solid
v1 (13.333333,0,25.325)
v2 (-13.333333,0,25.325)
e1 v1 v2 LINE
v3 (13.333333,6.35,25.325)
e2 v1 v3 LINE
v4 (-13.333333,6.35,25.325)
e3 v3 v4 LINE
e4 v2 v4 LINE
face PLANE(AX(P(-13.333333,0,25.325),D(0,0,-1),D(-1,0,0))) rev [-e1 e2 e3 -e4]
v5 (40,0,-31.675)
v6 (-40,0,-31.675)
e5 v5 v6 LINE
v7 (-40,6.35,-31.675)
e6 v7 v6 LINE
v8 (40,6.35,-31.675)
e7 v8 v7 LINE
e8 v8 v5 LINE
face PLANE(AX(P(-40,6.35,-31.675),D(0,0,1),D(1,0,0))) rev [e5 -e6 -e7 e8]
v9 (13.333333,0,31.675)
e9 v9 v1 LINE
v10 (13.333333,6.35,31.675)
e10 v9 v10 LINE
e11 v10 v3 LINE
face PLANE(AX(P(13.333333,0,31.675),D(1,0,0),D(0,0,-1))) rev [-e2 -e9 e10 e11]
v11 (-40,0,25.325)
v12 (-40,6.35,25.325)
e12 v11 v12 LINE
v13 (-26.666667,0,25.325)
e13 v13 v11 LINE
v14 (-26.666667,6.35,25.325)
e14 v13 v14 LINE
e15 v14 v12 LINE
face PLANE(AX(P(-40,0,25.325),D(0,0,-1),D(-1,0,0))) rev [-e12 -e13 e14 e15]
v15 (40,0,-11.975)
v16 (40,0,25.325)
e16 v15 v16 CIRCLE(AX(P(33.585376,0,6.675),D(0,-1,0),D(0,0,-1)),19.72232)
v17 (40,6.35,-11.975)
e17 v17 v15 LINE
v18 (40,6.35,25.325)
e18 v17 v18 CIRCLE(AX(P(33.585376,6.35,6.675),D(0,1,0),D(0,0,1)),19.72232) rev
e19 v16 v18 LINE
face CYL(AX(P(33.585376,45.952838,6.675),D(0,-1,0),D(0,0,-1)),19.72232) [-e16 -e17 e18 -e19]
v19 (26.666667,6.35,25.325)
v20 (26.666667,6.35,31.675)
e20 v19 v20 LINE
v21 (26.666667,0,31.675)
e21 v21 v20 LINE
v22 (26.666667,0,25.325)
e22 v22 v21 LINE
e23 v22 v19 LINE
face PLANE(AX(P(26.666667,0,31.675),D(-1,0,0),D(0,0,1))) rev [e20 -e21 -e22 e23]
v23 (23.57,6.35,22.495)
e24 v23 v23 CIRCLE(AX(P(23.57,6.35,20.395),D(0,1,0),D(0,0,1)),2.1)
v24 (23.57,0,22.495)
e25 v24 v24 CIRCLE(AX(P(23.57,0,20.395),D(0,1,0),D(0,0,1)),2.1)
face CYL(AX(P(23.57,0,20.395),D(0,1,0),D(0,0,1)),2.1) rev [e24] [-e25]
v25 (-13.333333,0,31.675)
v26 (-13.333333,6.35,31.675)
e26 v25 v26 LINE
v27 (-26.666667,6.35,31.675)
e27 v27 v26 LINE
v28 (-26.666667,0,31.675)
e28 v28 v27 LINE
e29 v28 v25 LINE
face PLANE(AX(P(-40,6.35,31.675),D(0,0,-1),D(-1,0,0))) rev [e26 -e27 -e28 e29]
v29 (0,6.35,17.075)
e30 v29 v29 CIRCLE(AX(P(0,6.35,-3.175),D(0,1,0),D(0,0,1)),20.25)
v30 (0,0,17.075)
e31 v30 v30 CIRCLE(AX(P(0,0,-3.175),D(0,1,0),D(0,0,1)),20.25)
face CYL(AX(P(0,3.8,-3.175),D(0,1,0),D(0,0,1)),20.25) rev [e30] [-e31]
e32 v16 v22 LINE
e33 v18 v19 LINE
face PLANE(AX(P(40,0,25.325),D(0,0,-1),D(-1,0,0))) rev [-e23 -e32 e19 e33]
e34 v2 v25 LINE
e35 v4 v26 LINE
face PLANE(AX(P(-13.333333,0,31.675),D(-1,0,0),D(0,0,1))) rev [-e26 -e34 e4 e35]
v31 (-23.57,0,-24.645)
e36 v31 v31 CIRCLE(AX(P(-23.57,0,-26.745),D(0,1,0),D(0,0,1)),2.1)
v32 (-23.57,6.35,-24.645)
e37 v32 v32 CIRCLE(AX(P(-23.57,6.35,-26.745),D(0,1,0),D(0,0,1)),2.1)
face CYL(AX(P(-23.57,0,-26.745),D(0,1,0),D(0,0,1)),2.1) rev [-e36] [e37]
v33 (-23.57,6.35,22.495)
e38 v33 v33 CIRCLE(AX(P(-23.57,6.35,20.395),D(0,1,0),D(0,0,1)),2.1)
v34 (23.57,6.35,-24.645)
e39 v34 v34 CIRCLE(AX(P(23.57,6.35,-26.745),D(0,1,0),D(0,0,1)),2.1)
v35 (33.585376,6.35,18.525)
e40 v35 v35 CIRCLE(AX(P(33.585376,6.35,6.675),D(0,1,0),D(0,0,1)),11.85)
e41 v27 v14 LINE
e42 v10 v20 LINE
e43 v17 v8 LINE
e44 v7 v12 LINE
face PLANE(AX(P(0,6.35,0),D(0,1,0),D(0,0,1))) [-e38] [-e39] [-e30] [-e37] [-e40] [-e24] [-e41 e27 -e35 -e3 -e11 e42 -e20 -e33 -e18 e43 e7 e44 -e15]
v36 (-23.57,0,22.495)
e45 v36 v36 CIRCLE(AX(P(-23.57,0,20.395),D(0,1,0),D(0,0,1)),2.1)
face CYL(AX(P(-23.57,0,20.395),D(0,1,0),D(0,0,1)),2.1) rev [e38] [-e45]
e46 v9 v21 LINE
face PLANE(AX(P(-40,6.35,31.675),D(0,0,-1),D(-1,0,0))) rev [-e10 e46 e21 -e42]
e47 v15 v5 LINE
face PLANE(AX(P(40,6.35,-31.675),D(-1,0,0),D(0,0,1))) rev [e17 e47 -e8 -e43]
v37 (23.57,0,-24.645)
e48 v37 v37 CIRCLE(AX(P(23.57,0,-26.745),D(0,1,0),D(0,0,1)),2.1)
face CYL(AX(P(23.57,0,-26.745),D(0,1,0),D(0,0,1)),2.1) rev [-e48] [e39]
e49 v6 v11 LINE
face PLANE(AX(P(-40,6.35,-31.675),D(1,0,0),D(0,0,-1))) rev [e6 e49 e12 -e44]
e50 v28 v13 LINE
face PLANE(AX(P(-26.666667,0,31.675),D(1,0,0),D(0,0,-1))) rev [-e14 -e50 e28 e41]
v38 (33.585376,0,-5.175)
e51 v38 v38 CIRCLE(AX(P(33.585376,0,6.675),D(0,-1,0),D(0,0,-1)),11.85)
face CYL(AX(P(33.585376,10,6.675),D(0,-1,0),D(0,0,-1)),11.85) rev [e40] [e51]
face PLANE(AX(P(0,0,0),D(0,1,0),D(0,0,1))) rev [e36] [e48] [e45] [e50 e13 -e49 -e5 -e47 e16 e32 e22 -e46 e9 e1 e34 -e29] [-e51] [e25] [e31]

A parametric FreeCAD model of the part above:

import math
import FreeCAD as App
import Part
import Sketcher

doc = App.newDocument("Part")
body = doc.addObject("PartDesign::Body", "Body")

# Sketch on XZ plane
sketch1 = doc.addObject("Sketcher::SketchObject", "Sketch")
body.addObject(sketch1)
sketch1.AttachmentSupport = (doc.XZ_Plane, [""])
sketch1.MapMode = "FlatFace"
sketch1.addGeometry(Part.LineSegment(App.Vector(-40, -32, 0), App.Vector(-40, 32, 0)), False)
sketch1.addGeometry(Part.LineSegment(App.Vector(-40, 32, 0), App.Vector(40, 32, 0)), False)
sketch1.addGeometry(Part.LineSegment(App.Vector(40, 32, 0), App.Vector(40, -32, 0)), False)
sketch1.addGeometry(Part.LineSegment(App.Vector(40, -32, 0), App.Vector(-40, -32, 0)), False)
sketch1.addConstraint(Sketcher.Constraint("Coincident", 0, 2, 1, 1))
sketch1.addConstraint(Sketcher.Constraint("Coincident", 1, 2, 2, 1))
sketch1.addConstraint(Sketcher.Constraint("Coincident", 2, 2, 3, 1))
sketch1.addConstraint(Sketcher.Constraint("Coincident", 3, 2, 0, 1))
sketch1.addConstraint(Sketcher.Constraint("Vertical", 0))
sketch1.addConstraint(Sketcher.Constraint("Horizontal", 1))
sketch1.addConstraint(Sketcher.Constraint("Vertical", 2))
sketch1.addConstraint(Sketcher.Constraint("Horizontal", 3))
sketch1.addConstraint(Sketcher.Constraint("Symmetric", 0, 2, 2, 2, -1, 1))
sketch1.addConstraint(Sketcher.Constraint("DistanceX", 1, 1, 1, 2, 80.0))
sketch1.addConstraint(Sketcher.Constraint("DistanceY", 0, 1, 0, 2, 63.35))
pad1 = doc.addObject("PartDesign::Pad", "Pad")
body.addObject(pad1)
pad1.Profile = sketch1
pad1.Length = 6.35
pad1.Reversed = True

# Sketch on XZ plane
sketch2 = doc.addObject("Sketcher::SketchObject", "Sketch001")
body.addObject(sketch2)
sketch2.AttachmentSupport = (doc.XZ_Plane, [""])
sketch2.MapMode = "FlatFace"
sketch2.AttachmentOffset = App.Placement(App.Vector(0, 0, -6.35), App.Rotation())
sketch2.addGeometry(Part.LineSegment(App.Vector(-40, 25, 0), App.Vector(-40, 32, 0)), False)
sketch2.addGeometry(Part.LineSegment(App.Vector(-40, 32, 0), App.Vector(-27, 32, 0)), False)
sketch2.addGeometry(Part.LineSegment(App.Vector(-27, 32, 0), App.Vector(-27, 25, 0)), False)
sketch2.addGeometry(Part.LineSegment(App.Vector(-27, 25, 0), App.Vector(-40, 25, 0)), False)
sketch2.addGeometry(Part.LineSegment(App.Vector(27, 25, 0), App.Vector(27, 32, 0)), False)
sketch2.addGeometry(Part.LineSegment(App.Vector(27, 32, 0), App.Vector(40, 32, 0)), False)
sketch2.addGeometry(Part.LineSegment(App.Vector(40, 32, 0), App.Vector(40, 25, 0)), False)
sketch2.addGeometry(Part.LineSegment(App.Vector(40, 25, 0), App.Vector(27, 25, 0)), False)
sketch2.addGeometry(Part.LineSegment(App.Vector(-13, 25, 0), App.Vector(-13, 32, 0)), False)
sketch2.addGeometry(Part.LineSegment(App.Vector(-13, 32, 0), App.Vector(13, 32, 0)), False)
sketch2.addGeometry(Part.LineSegment(App.Vector(13, 32, 0), App.Vector(13, 25, 0)), False)
sketch2.addGeometry(Part.LineSegment(App.Vector(13, 25, 0), App.Vector(-13, 25, 0)), False)
sketch2.addConstraint(Sketcher.Constraint("Coincident", 0, 2, 1, 1))
sketch2.addConstraint(Sketcher.Constraint("Coincident", 1, 2, 2, 1))
sketch2.addConstraint(Sketcher.Constraint("Coincident", 2, 2, 3, 1))
sketch2.addConstraint(Sketcher.Constraint("Coincident", 3, 2, 0, 1))
sketch2.addConstraint(Sketcher.Constraint("Coincident", 4, 2, 5, 1))
sketch2.addConstraint(Sketcher.Constraint("Coincident", 5, 2, 6, 1))
sketch2.addConstraint(Sketcher.Constraint("Coincident", 6, 2, 7, 1))
sketch2.addConstraint(Sketcher.Constraint("Coincident", 7, 2, 4, 1))
sketch2.addConstraint(Sketcher.Constraint("Coincident", 8, 2, 9, 1))
sketch2.addConstraint(Sketcher.Constraint("Coincident", 9, 2, 10, 1))
sketch2.addConstraint(Sketcher.Constraint("Coincident", 10, 2, 11, 1))
sketch2.addConstraint(Sketcher.Constraint("Coincident", 11, 2, 8, 1))
sketch2.addConstraint(Sketcher.Constraint("Vertical", 0))
sketch2.addConstraint(Sketcher.Constraint("Horizontal", 1))
sketch2.addConstraint(Sketcher.Constraint("Vertical", 2))
sketch2.addConstraint(Sketcher.Constraint("Horizontal", 3))
sketch2.addConstraint(Sketcher.Constraint("Vertical", 4))
sketch2.addConstraint(Sketcher.Constraint("Horizontal", 5))
sketch2.addConstraint(Sketcher.Constraint("Vertical", 6))
sketch2.addConstraint(Sketcher.Constraint("Horizontal", 7))
sketch2.addConstraint(Sketcher.Constraint("Vertical", 8))
sketch2.addConstraint(Sketcher.Constraint("Horizontal", 9))
sketch2.addConstraint(Sketcher.Constraint("Vertical", 10))
sketch2.addConstraint(Sketcher.Constraint("Horizontal", 11))
sketch2.addConstraint(Sketcher.Constraint("Symmetric", 1, 2, 4, 2, -2))
sketch2.addConstraint(Sketcher.Constraint("Symmetric", 3, 2, 6, 2, -2))
sketch2.addConstraint(Sketcher.Constraint("Horizontal", 5, 2, 8, 2))
sketch2.addConstraint(Sketcher.Constraint("Horizontal", 7, 2, 10, 2))
sketch2.addConstraint(Sketcher.Constraint("DistanceX", 0, 2, -1, 1, 40.0))
sketch2.addConstraint(Sketcher.Constraint("DistanceX", 8, 2, 4, 2, 40.0))
sketch2.addConstraint(Sketcher.Constraint("DistanceY", 0, 1, 0, 2, 6.35))
sketch2.addConstraint(Sketcher.Constraint("DistanceY", -1, 1, 0, 2, 31.675))
sketch2.addConstraint(Sketcher.Constraint("DistanceX", 1, 1, 1, 2, 13.333333))
sketch2.addConstraint(Sketcher.Constraint("DistanceX", 9, 1, 9, 2, 26.666667))
pocket1 = doc.addObject("PartDesign::Pocket", "Pocket")
body.addObject(pocket1)
pocket1.Profile = sketch2
pocket1.Type = "ThroughAll"
pocket1.Reversed = True

# Sketch on XZ plane
sketch3 = doc.addObject("Sketcher::SketchObject", "Sketch002")
body.addObject(sketch3)
sketch3.AttachmentSupport = (doc.XZ_Plane, [""])
sketch3.MapMode = "FlatFace"
sketch3.AttachmentOffset = App.Placement(App.Vector(0, 0, -6.35), App.Rotation())
sketch3.addGeometry(Part.Circle(App.Vector(0, -3, 0), App.Vector(0, 0, 1), 20), False)
sketch3.addConstraint(Sketcher.Constraint("PointOnObject", 0, 3, -2))
sketch3.addConstraint(Sketcher.Constraint("Diameter", 0, 40.5))
sketch3.addConstraint(Sketcher.Constraint("DistanceY", 0, 3, -1, 1, 3.175))
pocket2 = doc.addObject("PartDesign::Pocket", "Pocket001")
body.addObject(pocket2)
pocket2.Profile = sketch3
pocket2.Length = 2.55
pocket2.Reversed = True

# Sketch on XZ plane
sketch4 = doc.addObject("Sketcher::SketchObject", "Sketch003")
body.addObject(sketch4)
sketch4.AttachmentSupport = (doc.XZ_Plane, [""])
sketch4.MapMode = "FlatFace"
sketch4.AttachmentOffset = App.Placement(App.Vector(0, 0, -6.35), App.Rotation())
sketch4.addGeometry(Part.Circle(App.Vector(0, -3, 0), App.Vector(0, 0, 1), 20), False)
sketch4.addConstraint(Sketcher.Constraint("PointOnObject", 0, 3, -2))
sketch4.addConstraint(Sketcher.Constraint("Diameter", 0, 40.5))
sketch4.addConstraint(Sketcher.Constraint("DistanceY", 0, 3, -1, 1, 3.175))
pocket3 = doc.addObject("PartDesign::Pocket", "Pocket002")
body.addObject(pocket3)
pocket3.Profile = sketch4
pocket3.Type = "ThroughAll"
pocket3.Reversed = True

# Sketch on XZ plane
sketch5 = doc.addObject("Sketcher::SketchObject", "Sketch004")
body.addObject(sketch5)
sketch5.AttachmentSupport = (doc.XZ_Plane, [""])
sketch5.MapMode = "FlatFace"
sketch5.AttachmentOffset = App.Placement(App.Vector(0, 0, -6.35), App.Rotation())
sketch5.addGeometry(Part.Circle(App.Vector(23.6, -26.7, 0), App.Vector(0, 0, 1), 2.1), False)
sketch5.addGeometry(Part.Circle(App.Vector(-23.6, -26.7, 0), App.Vector(0, 0, 1), 2.1), False)
sketch5.addGeometry(Part.Circle(App.Vector(-23.6, 20.4, 0), App.Vector(0, 0, 1), 2.1), False)
sketch5.addGeometry(Part.Circle(App.Vector(23.6, 20.4, 0), App.Vector(0, 0, 1), 2.1), False)
sketch5.addConstraint(Sketcher.Constraint("Equal", 0, 1))
sketch5.addConstraint(Sketcher.Constraint("Equal", 1, 2))
sketch5.addConstraint(Sketcher.Constraint("Equal", 2, 3))
sketch5.addConstraint(Sketcher.Constraint("Symmetric", 0, 3, 1, 3, -2))
sketch5.addConstraint(Sketcher.Constraint("Symmetric", 2, 3, 3, 3, -2))
sketch5.addConstraint(Sketcher.Constraint("Vertical", 1, 3, 2, 3))
sketch5.addConstraint(Sketcher.Constraint("Diameter", 0, 4.2))
sketch5.addConstraint(Sketcher.Constraint("DistanceX", -1, 1, 0, 3, 23.57))
sketch5.addConstraint(Sketcher.Constraint("DistanceY", 1, 3, 2, 3, 47.14))
sketch5.addConstraint(Sketcher.Constraint("DistanceY", 0, 3, -1, 1, 26.745))
pocket4 = doc.addObject("PartDesign::Pocket", "Pocket003")
body.addObject(pocket4)
pocket4.Profile = sketch5
pocket4.Type = "ThroughAll"
pocket4.Reversed = True

# Sketch on XZ plane
sketch6 = doc.addObject("Sketcher::SketchObject", "Sketch005")
body.addObject(sketch6)
sketch6.AttachmentSupport = (doc.XZ_Plane, [""])
sketch6.MapMode = "FlatFace"
sketch6.addGeometry(Part.LineSegment(App.Vector(40, 25, 0), App.Vector(40, -12, 0)), False)
sketch6.addGeometry(Part.ArcOfCircle(Part.Circle(App.Vector(34, 7, 0), App.Vector(0, 0, 1), 20), math.radians(-71), math.radians(71)), False)
sketch6.addConstraint(Sketcher.Constraint("Coincident", 0, 1, 1, 2))
sketch6.addConstraint(Sketcher.Constraint("Coincident", 1, 1, 0, 2))
sketch6.addConstraint(Sketcher.Constraint("Vertical", 0))
sketch6.addConstraint(Sketcher.Constraint("DistanceY", 0, 2, 0, 1, 37.3))
sketch6.addConstraint(Sketcher.Constraint("DistanceX", -1, 1, 0, 1, 40.0))
sketch6.addConstraint(Sketcher.Constraint("Radius", 1, 19.72232))
sketch6.addConstraint(Sketcher.Constraint("DistanceY", -1, 1, 1, 3, 6.675))
pad2 = doc.addObject("PartDesign::Pad", "Pad001")
body.addObject(pad2)
pad2.Profile = sketch6
pad2.Length = 6.35
pad2.Reversed = True

# Sketch on XZ plane
sketch7 = doc.addObject("Sketcher::SketchObject", "Sketch006")
body.addObject(sketch7)
sketch7.AttachmentSupport = (doc.XZ_Plane, [""])
sketch7.MapMode = "FlatFace"
sketch7.addGeometry(Part.Circle(App.Vector(34, 7, 0), App.Vector(0, 0, 1), 12), False)
sketch7.addConstraint(Sketcher.Constraint("Diameter", 0, 23.7))
sketch7.addConstraint(Sketcher.Constraint("DistanceY", -1, 1, 0, 3, 6.675))
sketch7.addConstraint(Sketcher.Constraint("DistanceX", -1, 1, 0, 3, 33.585376))
pocket5 = doc.addObject("PartDesign::Pocket", "Pocket004")
body.addObject(pocket5)
pocket5.Profile = sketch7
pocket5.Length = 10

doc.recompute()
